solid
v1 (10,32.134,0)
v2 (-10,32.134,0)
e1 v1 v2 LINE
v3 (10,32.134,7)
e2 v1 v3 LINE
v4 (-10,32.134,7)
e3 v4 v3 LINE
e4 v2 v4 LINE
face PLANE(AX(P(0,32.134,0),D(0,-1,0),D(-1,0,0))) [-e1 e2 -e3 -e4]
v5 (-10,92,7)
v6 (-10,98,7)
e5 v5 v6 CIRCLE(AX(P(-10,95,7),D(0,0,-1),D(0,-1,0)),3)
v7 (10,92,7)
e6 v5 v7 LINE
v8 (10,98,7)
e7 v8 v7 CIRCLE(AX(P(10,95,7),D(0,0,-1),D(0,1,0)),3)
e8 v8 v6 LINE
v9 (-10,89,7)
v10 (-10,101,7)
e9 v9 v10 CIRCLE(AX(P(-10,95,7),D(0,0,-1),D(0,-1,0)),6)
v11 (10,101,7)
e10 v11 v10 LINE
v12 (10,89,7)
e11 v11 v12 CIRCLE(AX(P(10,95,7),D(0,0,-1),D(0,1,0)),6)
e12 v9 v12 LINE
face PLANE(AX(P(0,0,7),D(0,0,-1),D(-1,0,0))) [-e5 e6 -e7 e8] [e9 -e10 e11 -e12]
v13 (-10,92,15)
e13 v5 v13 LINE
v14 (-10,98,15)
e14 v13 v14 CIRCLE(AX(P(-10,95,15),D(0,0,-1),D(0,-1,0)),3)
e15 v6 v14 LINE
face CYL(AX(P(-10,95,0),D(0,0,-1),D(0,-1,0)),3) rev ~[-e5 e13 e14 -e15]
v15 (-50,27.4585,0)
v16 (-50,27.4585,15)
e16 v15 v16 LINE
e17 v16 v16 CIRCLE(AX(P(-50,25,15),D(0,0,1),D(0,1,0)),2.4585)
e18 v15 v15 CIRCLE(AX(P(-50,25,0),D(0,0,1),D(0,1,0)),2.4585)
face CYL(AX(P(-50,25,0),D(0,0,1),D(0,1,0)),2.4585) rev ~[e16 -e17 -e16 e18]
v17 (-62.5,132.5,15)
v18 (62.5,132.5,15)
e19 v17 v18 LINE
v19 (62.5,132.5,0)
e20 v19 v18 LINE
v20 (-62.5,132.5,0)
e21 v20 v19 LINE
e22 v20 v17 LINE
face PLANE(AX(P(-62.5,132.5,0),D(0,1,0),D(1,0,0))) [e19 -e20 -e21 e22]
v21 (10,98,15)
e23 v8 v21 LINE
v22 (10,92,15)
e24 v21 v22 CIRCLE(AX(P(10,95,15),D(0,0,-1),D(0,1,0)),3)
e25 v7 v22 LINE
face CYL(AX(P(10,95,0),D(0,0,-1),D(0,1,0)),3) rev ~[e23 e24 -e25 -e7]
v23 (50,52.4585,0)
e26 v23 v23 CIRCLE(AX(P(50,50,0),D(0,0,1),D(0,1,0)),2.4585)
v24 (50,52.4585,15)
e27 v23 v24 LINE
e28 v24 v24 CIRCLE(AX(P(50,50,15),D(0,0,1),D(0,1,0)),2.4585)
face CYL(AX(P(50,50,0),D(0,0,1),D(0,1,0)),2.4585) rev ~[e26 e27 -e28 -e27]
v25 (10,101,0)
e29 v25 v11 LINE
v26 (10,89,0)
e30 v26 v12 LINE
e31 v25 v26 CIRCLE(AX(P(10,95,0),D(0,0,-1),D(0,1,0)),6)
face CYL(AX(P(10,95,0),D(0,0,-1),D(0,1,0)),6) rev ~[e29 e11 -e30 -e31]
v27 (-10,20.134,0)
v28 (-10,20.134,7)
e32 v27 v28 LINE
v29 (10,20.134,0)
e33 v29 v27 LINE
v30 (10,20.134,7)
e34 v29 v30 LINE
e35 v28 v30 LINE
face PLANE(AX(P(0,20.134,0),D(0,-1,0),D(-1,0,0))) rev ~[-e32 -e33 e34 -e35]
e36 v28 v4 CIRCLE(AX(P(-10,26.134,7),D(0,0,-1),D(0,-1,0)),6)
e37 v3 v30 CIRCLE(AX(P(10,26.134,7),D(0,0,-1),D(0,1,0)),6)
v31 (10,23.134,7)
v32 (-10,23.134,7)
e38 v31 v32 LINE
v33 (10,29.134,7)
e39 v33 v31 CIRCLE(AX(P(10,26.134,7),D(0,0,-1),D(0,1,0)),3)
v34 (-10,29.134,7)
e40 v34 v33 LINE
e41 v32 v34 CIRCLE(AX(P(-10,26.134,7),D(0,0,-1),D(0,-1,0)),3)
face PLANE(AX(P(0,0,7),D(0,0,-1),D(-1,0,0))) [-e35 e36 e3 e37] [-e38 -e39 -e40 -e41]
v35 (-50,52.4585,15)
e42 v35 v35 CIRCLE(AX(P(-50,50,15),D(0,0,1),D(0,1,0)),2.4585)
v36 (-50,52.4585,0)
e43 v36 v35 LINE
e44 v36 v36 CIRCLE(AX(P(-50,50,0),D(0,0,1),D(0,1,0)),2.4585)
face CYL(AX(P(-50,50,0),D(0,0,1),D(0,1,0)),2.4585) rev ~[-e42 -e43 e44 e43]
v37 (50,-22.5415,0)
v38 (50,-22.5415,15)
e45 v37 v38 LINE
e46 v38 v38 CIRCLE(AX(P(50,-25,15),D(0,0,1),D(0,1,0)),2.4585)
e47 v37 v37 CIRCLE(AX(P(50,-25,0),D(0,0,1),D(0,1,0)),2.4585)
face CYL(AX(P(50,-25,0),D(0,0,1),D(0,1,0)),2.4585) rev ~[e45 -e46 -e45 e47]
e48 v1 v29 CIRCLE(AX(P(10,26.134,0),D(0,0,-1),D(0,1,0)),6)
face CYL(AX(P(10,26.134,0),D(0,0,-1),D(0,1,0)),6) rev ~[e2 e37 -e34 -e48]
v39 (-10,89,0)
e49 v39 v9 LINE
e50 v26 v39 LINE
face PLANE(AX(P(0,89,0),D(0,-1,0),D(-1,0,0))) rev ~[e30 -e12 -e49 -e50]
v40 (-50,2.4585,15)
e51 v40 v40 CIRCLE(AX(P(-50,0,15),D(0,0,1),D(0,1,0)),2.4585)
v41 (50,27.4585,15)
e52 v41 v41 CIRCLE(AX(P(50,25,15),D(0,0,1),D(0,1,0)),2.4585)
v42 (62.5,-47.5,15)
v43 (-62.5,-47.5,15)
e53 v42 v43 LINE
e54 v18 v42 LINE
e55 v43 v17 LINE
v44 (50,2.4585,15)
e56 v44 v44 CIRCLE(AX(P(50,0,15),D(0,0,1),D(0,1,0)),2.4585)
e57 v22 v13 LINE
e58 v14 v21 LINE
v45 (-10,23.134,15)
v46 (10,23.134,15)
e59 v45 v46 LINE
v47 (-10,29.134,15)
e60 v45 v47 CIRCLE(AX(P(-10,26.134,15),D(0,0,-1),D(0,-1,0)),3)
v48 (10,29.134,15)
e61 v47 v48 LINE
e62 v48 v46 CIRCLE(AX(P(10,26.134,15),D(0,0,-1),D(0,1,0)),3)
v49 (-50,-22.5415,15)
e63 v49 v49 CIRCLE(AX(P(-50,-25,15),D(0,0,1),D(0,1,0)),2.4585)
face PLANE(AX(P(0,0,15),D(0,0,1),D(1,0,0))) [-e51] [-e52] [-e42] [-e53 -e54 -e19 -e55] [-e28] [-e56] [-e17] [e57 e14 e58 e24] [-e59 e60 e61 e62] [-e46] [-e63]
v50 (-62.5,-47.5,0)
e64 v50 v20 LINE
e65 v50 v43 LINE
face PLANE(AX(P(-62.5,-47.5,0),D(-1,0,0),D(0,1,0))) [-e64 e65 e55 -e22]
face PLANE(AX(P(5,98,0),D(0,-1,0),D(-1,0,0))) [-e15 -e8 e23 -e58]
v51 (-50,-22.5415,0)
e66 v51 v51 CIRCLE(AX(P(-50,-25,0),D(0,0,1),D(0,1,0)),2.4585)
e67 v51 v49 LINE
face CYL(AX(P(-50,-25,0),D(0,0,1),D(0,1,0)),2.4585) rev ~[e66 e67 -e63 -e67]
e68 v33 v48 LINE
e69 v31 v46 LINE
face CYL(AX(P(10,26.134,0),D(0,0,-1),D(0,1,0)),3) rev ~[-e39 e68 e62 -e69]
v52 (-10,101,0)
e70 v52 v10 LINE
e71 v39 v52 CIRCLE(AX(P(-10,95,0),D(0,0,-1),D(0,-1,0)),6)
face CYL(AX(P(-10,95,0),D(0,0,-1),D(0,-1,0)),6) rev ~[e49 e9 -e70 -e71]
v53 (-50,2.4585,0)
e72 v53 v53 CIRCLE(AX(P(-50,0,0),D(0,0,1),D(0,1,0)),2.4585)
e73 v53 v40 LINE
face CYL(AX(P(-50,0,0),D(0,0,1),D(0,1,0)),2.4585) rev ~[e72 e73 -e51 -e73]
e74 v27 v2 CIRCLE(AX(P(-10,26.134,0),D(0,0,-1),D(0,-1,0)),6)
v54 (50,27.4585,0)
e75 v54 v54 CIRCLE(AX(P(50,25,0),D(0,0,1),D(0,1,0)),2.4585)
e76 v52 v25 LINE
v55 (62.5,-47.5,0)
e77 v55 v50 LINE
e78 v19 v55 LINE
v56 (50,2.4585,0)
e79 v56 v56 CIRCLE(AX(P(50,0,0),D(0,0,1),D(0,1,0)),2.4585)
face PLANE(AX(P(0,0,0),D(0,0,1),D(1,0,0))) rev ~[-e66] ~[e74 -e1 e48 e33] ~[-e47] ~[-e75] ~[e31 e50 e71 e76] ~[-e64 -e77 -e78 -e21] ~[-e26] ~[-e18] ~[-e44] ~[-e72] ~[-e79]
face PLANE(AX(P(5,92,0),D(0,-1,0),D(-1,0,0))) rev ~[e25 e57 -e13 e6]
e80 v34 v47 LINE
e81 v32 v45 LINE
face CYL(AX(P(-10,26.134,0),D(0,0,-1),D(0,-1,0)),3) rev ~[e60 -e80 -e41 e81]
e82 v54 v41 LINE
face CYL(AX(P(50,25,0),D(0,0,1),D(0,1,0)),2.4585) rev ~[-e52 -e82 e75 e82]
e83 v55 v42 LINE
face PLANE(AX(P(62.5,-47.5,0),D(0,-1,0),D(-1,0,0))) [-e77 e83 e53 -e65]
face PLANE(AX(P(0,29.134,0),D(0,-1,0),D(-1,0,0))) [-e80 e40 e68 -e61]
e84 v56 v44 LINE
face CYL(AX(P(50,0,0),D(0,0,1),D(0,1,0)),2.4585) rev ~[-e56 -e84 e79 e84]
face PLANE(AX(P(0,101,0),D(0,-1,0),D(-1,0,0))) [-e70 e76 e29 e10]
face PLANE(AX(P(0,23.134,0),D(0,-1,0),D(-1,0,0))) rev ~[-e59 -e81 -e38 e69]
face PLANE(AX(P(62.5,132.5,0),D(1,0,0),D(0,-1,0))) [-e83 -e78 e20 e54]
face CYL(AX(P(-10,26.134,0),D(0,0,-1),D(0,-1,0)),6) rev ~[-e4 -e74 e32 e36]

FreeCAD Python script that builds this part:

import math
import FreeCAD as App
import Part
import Sketcher

doc = App.newDocument("Part")
body = doc.addObject("PartDesign::Body", "Body")

# Sketch on XY plane
sketch1 = body.newObject("Sketcher::SketchObject", "Sketch")
sketch1.AttachmentSupport = (doc.getObject("XY_Plane"), [""])
sketch1.MapMode = "FlatFace"
sketch1.addGeometry([
    Part.LineSegment(App.Vector(-62, -48, 0), App.Vector(62, -48, 0)),
    Part.LineSegment(App.Vector(62, -48, 0), App.Vector(62, 132, 0)),
    Part.LineSegment(App.Vector(62, 132, 0), App.Vector(-62, 132, 0)),
    Part.LineSegment(App.Vector(-62, 132, 0), App.Vector(-62, -48, 0)),
], False)
sketch1.addConstraint([
    Sketcher.Constraint("Coincident", 0, 2, 1, 1),
    Sketcher.Constraint("Coincident", 1, 2, 2, 1),
    Sketcher.Constraint("Coincident", 2, 2, 3, 1),
    Sketcher.Constraint("Coincident", 3, 2, 0, 1),
    Sketcher.Constraint("Horizontal", 0),
    Sketcher.Constraint("Vertical", 1),
    Sketcher.Constraint("Horizontal", 2),
    Sketcher.Constraint("Vertical", 3),
    Sketcher.Constraint("DistanceX", 0, 1, 0, 2, 125.0),
    Sketcher.Constraint("DistanceY", 1, 1, 1, 2, 180.0),
    Sketcher.Constraint("DistanceX", -1, 1, 0, 2, 62.5),
    Sketcher.Constraint("DistanceY", 0, 2, -1, 1, 47.5),
])
pad1 = body.newObject("PartDesign::Pad", "Pad")
pad1.Profile = sketch1
pad1.Length = 15

# Sketch on XY plane
sketch2 = body.newObject("Sketcher::SketchObject", "Sketch001")
sketch2.AttachmentSupport = (doc.getObject("XY_Plane"), [""])
sketch2.MapMode = "FlatFace"
sketch2.addGeometry([
    Part.Circle(App.Vector(-50, -25, 0), App.Vector(0, 0, 1), 2.5),  # 0
    Part.Circle(App.Vector(-50, 0, 0), App.Vector(0, 0, 1), 2.5),  # 1
    Part.Circle(App.Vector(-50, 25, 0), App.Vector(0, 0, 1), 2.5),  # 2
    Part.Circle(App.Vector(50, -25, 0), App.Vector(0, 0, 1), 2.5),  # 3
    Part.Circle(App.Vector(50, 0, 0), App.Vector(0, 0, 1), 2.5),  # 4
    Part.Circle(App.Vector(50, 25, 0), App.Vector(0, 0, 1), 2.5),  # 5
    Part.Circle(App.Vector(-50, 50, 0), App.Vector(0, 0, 1), 2.5),  # 6
    Part.Circle(App.Vector(50, 50, 0), App.Vector(0, 0, 1), 2.5),  # 7
], False)
sketch2.addConstraint([
    Sketcher.Constraint("Equal", 0, 1),
    Sketcher.Constraint("Equal", 1, 2),
    Sketcher.Constraint("Equal", 2, 3),
    Sketcher.Constraint("Equal", 3, 4),
    Sketcher.Constraint("Equal", 4, 5),
    Sketcher.Constraint("Equal", 5, 6),
    Sketcher.Constraint("Equal", 6, 7),
    Sketcher.Constraint("Symmetric", 2, 3, 3, 3, -1, 1),
    Sketcher.Constraint("Symmetric", 1, 3, 4, 3, -1, 1),
    Sketcher.Constraint("Symmetric", 0, 3, 5, 3, -1, 1),
    Sketcher.Constraint("Symmetric", 0, 3, 3, 3, -2),
    Sketcher.Constraint("Symmetric", 6, 3, 7, 3, -2),
    Sketcher.Constraint("PointOnObject", 1, 3, -1),
    Sketcher.Constraint("Vertical", 0, 3, 1, 3),
    Sketcher.Constraint("Vertical", 2, 3, 6, 3),
    Sketcher.Constraint("Diameter", 0, 4.917),
    Sketcher.Constraint("DistanceX", 0, 3, -1, 1, 50.0),
    Sketcher.Constraint("DistanceY", 0, 3, -1, 1, 25.0),
    Sketcher.Constraint("DistanceY", -1, 1, 6, 3, 50.0),
])
doc.recompute()
hole = body.newObject("PartDesign::Hole", "Hole")
hole.Profile = sketch2
hole.ThreadType = "None"
hole.Diameter = 4.917
hole.DepthType = "ThroughAll"
hole.Reversed = True

# Sketch on XY plane
sketch3 = body.newObject("Sketcher::SketchObject", "Sketch002")
sketch3.AttachmentSupport = (doc.getObject("XY_Plane"), [""])
sketch3.MapMode = "FlatFace"
sketch3.addGeometry([
    Part.ArcOfCircle(Part.Circle(App.Vector(-10, 95, 0), App.Vector(0, 0, 1), 3), math.radians(90), math.radians(270)),  # 0
    Part.LineSegment(App.Vector(-10, 98, 0), App.Vector(10, 98, 0)),  # 1
    Part.ArcOfCircle(Part.Circle(App.Vector(10, 95, 0), App.Vector(0, 0, 1), 3), math.radians(-90), math.radians(90)),  # 2
    Part.LineSegment(App.Vector(10, 92, 0), App.Vector(-10, 92, 0)),  # 3
    Part.LineSegment(App.Vector(-10, 29.1, 0), App.Vector(10, 29.1, 0)),  # 4
    Part.ArcOfCircle(Part.Circle(App.Vector(10, 26.1, 0), App.Vector(0, 0, 1), 3), math.radians(-90), math.radians(90)),  # 5
    Part.LineSegment(App.Vector(10, 23.1, 0), App.Vector(-10, 23.1, 0)),  # 6
    Part.ArcOfCircle(Part.Circle(App.Vector(-10, 26.1, 0), App.Vector(0, 0, 1), 3), math.radians(90), math.radians(270)),  # 7
], False)
sketch3.addConstraint([
    Sketcher.Constraint("Tangent", 0, 1, 1, 1),
    Sketcher.Constraint("Tangent", 1, 2, 2, 2),
    Sketcher.Constraint("Tangent", 2, 1, 3, 1),
    Sketcher.Constraint("Tangent", 3, 2, 0, 2),
    Sketcher.Constraint("Tangent", 4, 2, 5, 2),
    Sketcher.Constraint("Tangent", 5, 1, 6, 1),
    Sketcher.Constraint("Tangent", 6, 2, 7, 2),
    Sketcher.Constraint("Tangent", 7, 1, 4, 1),
    Sketcher.Constraint("Horizontal", 1),
    Sketcher.Constraint("Horizontal", 3),
    Sketcher.Constraint("Horizontal", 4),
    Sketcher.Constraint("Horizontal", 6),
    Sketcher.Constraint("Equal", 2, 5),
    Sketcher.Constraint("Vertical", 2, 3, 5, 3),
    Sketcher.Constraint("Vertical", 0, 3, 7, 3),
    Sketcher.Constraint("Radius", 0, 3.0),
    Sketcher.Constraint("DistanceX", 1, 1, 1, 2, 20.0),
    Sketcher.Constraint("DistanceX", 0, 3, -1, 1, 10.0),
    Sketcher.Constraint("DistanceY", -1, 1, 0, 3, 95.0),
    Sketcher.Constraint("DistanceY", 5, 3, 2, 3, 68.866),
])
pocket1 = body.newObject("PartDesign::Pocket", "Pocket")
pocket1.Profile = sketch3
pocket1.Length = 15
pocket1.Reversed = True

# Sketch on XY plane
sketch4 = body.newObject("Sketcher::SketchObject", "Sketch003")
sketch4.AttachmentSupport = (doc.getObject("XY_Plane"), [""])
sketch4.MapMode = "FlatFace"
sketch4.addGeometry([
    Part.LineSegment(App.Vector(-10, 101, 0), App.Vector(10, 101, 0)),  # 0
    Part.ArcOfCircle(Part.Circle(App.Vector(10, 95, 0), App.Vector(0, 0, 1), 6), math.radians(-90), math.radians(90)),  # 1
    Part.LineSegment(App.Vector(10, 89, 0), App.Vector(-10, 89, 0)),  # 2
    Part.ArcOfCircle(Part.Circle(App.Vector(-10, 95, 0), App.Vector(0, 0, 1), 6), math.radians(90), math.radians(270)),  # 3
    Part.ArcOfCircle(Part.Circle(App.Vector(-10, 95, 0), App.Vector(0, 0, 1), 3), math.radians(90), math.radians(270)),  # 4
    Part.LineSegment(App.Vector(-10, 92, 0), App.Vector(10, 92, 0)),  # 5
    Part.ArcOfCircle(Part.Circle(App.Vector(10, 95, 0), App.Vector(0, 0, 1), 3), math.radians(-90), math.radians(90)),  # 6
    Part.LineSegment(App.Vector(10, 98, 0), App.Vector(-10, 98, 0)),  # 7
    Part.LineSegment(App.Vector(-10, 32.1, 0), App.Vector(10, 32.1, 0)),  # 8
    Part.ArcOfCircle(Part.Circle(App.Vector(10, 26.1, 0), App.Vector(0, 0, 1), 6), math.radians(-90), math.radians(90)),  # 9
    Part.LineSegment(App.Vector(10, 20.1, 0), App.Vector(-10, 20.1, 0)),  # 10
    Part.ArcOfCircle(Part.Circle(App.Vector(-10, 26.1, 0), App.Vector(0, 0, 1), 6), math.radians(90), math.radians(270)),  # 11
    Part.LineSegment(App.Vector(-10, 23.1, 0), App.Vector(10, 23.1, 0)),  # 12
    Part.ArcOfCircle(Part.Circle(App.Vector(10, 26.1, 0), App.Vector(0, 0, 1), 3), math.radians(-90), math.radians(90)),  # 13
    Part.LineSegment(App.Vector(10, 29.1, 0), App.Vector(-10, 29.1, 0)),  # 14
    Part.ArcOfCircle(Part.Circle(App.Vector(-10, 26.1, 0), App.Vector(0, 0, 1), 3), math.radians(90), math.radians(270)),  # 15
], False)
sketch4.addConstraint([
    Sketcher.Constraint("Tangent", 0, 2, 1, 2),
    Sketcher.Constraint("Tangent", 1, 1, 2, 1),
    Sketcher.Constraint("Tangent", 2, 2, 3, 2),
    Sketcher.Constraint("Tangent", 3, 1, 0, 1),
    Sketcher.Constraint("Tangent", 4, 2, 5, 1),
    Sketcher.Constraint("Tangent", 5, 2, 6, 1),
    Sketcher.Constraint("Tangent", 6, 2, 7, 1),
    Sketcher.Constraint("Tangent", 7, 2, 4, 1),
    Sketcher.Constraint("Tangent", 8, 2, 9, 2),
    Sketcher.Constraint("Tangent", 9, 1, 10, 1),
    Sketcher.Constraint("Tangent", 10, 2, 11, 2),
    Sketcher.Constraint("Tangent", 11, 1, 8, 1),
    Sketcher.Constraint("Tangent", 12, 2, 13, 1),
    Sketcher.Constraint("Tangent", 13, 2, 14, 1),
    Sketcher.Constraint("Tangent", 14, 2, 15, 1),
    Sketcher.Constraint("Tangent", 15, 2, 12, 1),
    Sketcher.Constraint("Horizontal", 0),
    Sketcher.Constraint("Horizontal", 2),
    Sketcher.Constraint("Horizontal", 5),
    Sketcher.Constraint("Horizontal", 7),
    Sketcher.Constraint("Horizontal", 8),
    Sketcher.Constraint("Horizontal", 10),
    Sketcher.Constraint("Horizontal", 12),
    Sketcher.Constraint("Horizontal", 14),
    Sketcher.Constraint("Coincident", 4, 3, 3, 3),
    Sketcher.Constraint("Coincident", 13, 3, 9, 3),
    Sketcher.Constraint("Equal", 3, 9),
    Sketcher.Constraint("Equal", 6, 13),
    Sketcher.Constraint("Vertical", 6, 3, 9, 3),
    Sketcher.Constraint("Vertical", 4, 3, 11, 3),
    Sketcher.Constraint("Vertical", 4, 3, 15, 3),
    Sketcher.Constraint("Vertical", 13, 3, 0, 2),
    Sketcher.Constraint("Radius", 1, 6.0),
    Sketcher.Constraint("Radius", 4, 3.0),
    Sketcher.Constraint("DistanceX", -1, 1, 1, 3, 10.0),
    Sketcher.Constraint("DistanceX", 3, 3, -1, 1, 10.0),
    Sketcher.Constraint("DistanceY", -1, 1, 1, 3, 95.0),
    Sketcher.Constraint("DistanceY", 9, 3, 1, 3, 68.866),
])
pocket2 = body.newObject("PartDesign::Pocket", "Pocket001")
pocket2.Profile = sketch4
pocket2.Length = 7
pocket2.Reversed = True

doc.recompute()
